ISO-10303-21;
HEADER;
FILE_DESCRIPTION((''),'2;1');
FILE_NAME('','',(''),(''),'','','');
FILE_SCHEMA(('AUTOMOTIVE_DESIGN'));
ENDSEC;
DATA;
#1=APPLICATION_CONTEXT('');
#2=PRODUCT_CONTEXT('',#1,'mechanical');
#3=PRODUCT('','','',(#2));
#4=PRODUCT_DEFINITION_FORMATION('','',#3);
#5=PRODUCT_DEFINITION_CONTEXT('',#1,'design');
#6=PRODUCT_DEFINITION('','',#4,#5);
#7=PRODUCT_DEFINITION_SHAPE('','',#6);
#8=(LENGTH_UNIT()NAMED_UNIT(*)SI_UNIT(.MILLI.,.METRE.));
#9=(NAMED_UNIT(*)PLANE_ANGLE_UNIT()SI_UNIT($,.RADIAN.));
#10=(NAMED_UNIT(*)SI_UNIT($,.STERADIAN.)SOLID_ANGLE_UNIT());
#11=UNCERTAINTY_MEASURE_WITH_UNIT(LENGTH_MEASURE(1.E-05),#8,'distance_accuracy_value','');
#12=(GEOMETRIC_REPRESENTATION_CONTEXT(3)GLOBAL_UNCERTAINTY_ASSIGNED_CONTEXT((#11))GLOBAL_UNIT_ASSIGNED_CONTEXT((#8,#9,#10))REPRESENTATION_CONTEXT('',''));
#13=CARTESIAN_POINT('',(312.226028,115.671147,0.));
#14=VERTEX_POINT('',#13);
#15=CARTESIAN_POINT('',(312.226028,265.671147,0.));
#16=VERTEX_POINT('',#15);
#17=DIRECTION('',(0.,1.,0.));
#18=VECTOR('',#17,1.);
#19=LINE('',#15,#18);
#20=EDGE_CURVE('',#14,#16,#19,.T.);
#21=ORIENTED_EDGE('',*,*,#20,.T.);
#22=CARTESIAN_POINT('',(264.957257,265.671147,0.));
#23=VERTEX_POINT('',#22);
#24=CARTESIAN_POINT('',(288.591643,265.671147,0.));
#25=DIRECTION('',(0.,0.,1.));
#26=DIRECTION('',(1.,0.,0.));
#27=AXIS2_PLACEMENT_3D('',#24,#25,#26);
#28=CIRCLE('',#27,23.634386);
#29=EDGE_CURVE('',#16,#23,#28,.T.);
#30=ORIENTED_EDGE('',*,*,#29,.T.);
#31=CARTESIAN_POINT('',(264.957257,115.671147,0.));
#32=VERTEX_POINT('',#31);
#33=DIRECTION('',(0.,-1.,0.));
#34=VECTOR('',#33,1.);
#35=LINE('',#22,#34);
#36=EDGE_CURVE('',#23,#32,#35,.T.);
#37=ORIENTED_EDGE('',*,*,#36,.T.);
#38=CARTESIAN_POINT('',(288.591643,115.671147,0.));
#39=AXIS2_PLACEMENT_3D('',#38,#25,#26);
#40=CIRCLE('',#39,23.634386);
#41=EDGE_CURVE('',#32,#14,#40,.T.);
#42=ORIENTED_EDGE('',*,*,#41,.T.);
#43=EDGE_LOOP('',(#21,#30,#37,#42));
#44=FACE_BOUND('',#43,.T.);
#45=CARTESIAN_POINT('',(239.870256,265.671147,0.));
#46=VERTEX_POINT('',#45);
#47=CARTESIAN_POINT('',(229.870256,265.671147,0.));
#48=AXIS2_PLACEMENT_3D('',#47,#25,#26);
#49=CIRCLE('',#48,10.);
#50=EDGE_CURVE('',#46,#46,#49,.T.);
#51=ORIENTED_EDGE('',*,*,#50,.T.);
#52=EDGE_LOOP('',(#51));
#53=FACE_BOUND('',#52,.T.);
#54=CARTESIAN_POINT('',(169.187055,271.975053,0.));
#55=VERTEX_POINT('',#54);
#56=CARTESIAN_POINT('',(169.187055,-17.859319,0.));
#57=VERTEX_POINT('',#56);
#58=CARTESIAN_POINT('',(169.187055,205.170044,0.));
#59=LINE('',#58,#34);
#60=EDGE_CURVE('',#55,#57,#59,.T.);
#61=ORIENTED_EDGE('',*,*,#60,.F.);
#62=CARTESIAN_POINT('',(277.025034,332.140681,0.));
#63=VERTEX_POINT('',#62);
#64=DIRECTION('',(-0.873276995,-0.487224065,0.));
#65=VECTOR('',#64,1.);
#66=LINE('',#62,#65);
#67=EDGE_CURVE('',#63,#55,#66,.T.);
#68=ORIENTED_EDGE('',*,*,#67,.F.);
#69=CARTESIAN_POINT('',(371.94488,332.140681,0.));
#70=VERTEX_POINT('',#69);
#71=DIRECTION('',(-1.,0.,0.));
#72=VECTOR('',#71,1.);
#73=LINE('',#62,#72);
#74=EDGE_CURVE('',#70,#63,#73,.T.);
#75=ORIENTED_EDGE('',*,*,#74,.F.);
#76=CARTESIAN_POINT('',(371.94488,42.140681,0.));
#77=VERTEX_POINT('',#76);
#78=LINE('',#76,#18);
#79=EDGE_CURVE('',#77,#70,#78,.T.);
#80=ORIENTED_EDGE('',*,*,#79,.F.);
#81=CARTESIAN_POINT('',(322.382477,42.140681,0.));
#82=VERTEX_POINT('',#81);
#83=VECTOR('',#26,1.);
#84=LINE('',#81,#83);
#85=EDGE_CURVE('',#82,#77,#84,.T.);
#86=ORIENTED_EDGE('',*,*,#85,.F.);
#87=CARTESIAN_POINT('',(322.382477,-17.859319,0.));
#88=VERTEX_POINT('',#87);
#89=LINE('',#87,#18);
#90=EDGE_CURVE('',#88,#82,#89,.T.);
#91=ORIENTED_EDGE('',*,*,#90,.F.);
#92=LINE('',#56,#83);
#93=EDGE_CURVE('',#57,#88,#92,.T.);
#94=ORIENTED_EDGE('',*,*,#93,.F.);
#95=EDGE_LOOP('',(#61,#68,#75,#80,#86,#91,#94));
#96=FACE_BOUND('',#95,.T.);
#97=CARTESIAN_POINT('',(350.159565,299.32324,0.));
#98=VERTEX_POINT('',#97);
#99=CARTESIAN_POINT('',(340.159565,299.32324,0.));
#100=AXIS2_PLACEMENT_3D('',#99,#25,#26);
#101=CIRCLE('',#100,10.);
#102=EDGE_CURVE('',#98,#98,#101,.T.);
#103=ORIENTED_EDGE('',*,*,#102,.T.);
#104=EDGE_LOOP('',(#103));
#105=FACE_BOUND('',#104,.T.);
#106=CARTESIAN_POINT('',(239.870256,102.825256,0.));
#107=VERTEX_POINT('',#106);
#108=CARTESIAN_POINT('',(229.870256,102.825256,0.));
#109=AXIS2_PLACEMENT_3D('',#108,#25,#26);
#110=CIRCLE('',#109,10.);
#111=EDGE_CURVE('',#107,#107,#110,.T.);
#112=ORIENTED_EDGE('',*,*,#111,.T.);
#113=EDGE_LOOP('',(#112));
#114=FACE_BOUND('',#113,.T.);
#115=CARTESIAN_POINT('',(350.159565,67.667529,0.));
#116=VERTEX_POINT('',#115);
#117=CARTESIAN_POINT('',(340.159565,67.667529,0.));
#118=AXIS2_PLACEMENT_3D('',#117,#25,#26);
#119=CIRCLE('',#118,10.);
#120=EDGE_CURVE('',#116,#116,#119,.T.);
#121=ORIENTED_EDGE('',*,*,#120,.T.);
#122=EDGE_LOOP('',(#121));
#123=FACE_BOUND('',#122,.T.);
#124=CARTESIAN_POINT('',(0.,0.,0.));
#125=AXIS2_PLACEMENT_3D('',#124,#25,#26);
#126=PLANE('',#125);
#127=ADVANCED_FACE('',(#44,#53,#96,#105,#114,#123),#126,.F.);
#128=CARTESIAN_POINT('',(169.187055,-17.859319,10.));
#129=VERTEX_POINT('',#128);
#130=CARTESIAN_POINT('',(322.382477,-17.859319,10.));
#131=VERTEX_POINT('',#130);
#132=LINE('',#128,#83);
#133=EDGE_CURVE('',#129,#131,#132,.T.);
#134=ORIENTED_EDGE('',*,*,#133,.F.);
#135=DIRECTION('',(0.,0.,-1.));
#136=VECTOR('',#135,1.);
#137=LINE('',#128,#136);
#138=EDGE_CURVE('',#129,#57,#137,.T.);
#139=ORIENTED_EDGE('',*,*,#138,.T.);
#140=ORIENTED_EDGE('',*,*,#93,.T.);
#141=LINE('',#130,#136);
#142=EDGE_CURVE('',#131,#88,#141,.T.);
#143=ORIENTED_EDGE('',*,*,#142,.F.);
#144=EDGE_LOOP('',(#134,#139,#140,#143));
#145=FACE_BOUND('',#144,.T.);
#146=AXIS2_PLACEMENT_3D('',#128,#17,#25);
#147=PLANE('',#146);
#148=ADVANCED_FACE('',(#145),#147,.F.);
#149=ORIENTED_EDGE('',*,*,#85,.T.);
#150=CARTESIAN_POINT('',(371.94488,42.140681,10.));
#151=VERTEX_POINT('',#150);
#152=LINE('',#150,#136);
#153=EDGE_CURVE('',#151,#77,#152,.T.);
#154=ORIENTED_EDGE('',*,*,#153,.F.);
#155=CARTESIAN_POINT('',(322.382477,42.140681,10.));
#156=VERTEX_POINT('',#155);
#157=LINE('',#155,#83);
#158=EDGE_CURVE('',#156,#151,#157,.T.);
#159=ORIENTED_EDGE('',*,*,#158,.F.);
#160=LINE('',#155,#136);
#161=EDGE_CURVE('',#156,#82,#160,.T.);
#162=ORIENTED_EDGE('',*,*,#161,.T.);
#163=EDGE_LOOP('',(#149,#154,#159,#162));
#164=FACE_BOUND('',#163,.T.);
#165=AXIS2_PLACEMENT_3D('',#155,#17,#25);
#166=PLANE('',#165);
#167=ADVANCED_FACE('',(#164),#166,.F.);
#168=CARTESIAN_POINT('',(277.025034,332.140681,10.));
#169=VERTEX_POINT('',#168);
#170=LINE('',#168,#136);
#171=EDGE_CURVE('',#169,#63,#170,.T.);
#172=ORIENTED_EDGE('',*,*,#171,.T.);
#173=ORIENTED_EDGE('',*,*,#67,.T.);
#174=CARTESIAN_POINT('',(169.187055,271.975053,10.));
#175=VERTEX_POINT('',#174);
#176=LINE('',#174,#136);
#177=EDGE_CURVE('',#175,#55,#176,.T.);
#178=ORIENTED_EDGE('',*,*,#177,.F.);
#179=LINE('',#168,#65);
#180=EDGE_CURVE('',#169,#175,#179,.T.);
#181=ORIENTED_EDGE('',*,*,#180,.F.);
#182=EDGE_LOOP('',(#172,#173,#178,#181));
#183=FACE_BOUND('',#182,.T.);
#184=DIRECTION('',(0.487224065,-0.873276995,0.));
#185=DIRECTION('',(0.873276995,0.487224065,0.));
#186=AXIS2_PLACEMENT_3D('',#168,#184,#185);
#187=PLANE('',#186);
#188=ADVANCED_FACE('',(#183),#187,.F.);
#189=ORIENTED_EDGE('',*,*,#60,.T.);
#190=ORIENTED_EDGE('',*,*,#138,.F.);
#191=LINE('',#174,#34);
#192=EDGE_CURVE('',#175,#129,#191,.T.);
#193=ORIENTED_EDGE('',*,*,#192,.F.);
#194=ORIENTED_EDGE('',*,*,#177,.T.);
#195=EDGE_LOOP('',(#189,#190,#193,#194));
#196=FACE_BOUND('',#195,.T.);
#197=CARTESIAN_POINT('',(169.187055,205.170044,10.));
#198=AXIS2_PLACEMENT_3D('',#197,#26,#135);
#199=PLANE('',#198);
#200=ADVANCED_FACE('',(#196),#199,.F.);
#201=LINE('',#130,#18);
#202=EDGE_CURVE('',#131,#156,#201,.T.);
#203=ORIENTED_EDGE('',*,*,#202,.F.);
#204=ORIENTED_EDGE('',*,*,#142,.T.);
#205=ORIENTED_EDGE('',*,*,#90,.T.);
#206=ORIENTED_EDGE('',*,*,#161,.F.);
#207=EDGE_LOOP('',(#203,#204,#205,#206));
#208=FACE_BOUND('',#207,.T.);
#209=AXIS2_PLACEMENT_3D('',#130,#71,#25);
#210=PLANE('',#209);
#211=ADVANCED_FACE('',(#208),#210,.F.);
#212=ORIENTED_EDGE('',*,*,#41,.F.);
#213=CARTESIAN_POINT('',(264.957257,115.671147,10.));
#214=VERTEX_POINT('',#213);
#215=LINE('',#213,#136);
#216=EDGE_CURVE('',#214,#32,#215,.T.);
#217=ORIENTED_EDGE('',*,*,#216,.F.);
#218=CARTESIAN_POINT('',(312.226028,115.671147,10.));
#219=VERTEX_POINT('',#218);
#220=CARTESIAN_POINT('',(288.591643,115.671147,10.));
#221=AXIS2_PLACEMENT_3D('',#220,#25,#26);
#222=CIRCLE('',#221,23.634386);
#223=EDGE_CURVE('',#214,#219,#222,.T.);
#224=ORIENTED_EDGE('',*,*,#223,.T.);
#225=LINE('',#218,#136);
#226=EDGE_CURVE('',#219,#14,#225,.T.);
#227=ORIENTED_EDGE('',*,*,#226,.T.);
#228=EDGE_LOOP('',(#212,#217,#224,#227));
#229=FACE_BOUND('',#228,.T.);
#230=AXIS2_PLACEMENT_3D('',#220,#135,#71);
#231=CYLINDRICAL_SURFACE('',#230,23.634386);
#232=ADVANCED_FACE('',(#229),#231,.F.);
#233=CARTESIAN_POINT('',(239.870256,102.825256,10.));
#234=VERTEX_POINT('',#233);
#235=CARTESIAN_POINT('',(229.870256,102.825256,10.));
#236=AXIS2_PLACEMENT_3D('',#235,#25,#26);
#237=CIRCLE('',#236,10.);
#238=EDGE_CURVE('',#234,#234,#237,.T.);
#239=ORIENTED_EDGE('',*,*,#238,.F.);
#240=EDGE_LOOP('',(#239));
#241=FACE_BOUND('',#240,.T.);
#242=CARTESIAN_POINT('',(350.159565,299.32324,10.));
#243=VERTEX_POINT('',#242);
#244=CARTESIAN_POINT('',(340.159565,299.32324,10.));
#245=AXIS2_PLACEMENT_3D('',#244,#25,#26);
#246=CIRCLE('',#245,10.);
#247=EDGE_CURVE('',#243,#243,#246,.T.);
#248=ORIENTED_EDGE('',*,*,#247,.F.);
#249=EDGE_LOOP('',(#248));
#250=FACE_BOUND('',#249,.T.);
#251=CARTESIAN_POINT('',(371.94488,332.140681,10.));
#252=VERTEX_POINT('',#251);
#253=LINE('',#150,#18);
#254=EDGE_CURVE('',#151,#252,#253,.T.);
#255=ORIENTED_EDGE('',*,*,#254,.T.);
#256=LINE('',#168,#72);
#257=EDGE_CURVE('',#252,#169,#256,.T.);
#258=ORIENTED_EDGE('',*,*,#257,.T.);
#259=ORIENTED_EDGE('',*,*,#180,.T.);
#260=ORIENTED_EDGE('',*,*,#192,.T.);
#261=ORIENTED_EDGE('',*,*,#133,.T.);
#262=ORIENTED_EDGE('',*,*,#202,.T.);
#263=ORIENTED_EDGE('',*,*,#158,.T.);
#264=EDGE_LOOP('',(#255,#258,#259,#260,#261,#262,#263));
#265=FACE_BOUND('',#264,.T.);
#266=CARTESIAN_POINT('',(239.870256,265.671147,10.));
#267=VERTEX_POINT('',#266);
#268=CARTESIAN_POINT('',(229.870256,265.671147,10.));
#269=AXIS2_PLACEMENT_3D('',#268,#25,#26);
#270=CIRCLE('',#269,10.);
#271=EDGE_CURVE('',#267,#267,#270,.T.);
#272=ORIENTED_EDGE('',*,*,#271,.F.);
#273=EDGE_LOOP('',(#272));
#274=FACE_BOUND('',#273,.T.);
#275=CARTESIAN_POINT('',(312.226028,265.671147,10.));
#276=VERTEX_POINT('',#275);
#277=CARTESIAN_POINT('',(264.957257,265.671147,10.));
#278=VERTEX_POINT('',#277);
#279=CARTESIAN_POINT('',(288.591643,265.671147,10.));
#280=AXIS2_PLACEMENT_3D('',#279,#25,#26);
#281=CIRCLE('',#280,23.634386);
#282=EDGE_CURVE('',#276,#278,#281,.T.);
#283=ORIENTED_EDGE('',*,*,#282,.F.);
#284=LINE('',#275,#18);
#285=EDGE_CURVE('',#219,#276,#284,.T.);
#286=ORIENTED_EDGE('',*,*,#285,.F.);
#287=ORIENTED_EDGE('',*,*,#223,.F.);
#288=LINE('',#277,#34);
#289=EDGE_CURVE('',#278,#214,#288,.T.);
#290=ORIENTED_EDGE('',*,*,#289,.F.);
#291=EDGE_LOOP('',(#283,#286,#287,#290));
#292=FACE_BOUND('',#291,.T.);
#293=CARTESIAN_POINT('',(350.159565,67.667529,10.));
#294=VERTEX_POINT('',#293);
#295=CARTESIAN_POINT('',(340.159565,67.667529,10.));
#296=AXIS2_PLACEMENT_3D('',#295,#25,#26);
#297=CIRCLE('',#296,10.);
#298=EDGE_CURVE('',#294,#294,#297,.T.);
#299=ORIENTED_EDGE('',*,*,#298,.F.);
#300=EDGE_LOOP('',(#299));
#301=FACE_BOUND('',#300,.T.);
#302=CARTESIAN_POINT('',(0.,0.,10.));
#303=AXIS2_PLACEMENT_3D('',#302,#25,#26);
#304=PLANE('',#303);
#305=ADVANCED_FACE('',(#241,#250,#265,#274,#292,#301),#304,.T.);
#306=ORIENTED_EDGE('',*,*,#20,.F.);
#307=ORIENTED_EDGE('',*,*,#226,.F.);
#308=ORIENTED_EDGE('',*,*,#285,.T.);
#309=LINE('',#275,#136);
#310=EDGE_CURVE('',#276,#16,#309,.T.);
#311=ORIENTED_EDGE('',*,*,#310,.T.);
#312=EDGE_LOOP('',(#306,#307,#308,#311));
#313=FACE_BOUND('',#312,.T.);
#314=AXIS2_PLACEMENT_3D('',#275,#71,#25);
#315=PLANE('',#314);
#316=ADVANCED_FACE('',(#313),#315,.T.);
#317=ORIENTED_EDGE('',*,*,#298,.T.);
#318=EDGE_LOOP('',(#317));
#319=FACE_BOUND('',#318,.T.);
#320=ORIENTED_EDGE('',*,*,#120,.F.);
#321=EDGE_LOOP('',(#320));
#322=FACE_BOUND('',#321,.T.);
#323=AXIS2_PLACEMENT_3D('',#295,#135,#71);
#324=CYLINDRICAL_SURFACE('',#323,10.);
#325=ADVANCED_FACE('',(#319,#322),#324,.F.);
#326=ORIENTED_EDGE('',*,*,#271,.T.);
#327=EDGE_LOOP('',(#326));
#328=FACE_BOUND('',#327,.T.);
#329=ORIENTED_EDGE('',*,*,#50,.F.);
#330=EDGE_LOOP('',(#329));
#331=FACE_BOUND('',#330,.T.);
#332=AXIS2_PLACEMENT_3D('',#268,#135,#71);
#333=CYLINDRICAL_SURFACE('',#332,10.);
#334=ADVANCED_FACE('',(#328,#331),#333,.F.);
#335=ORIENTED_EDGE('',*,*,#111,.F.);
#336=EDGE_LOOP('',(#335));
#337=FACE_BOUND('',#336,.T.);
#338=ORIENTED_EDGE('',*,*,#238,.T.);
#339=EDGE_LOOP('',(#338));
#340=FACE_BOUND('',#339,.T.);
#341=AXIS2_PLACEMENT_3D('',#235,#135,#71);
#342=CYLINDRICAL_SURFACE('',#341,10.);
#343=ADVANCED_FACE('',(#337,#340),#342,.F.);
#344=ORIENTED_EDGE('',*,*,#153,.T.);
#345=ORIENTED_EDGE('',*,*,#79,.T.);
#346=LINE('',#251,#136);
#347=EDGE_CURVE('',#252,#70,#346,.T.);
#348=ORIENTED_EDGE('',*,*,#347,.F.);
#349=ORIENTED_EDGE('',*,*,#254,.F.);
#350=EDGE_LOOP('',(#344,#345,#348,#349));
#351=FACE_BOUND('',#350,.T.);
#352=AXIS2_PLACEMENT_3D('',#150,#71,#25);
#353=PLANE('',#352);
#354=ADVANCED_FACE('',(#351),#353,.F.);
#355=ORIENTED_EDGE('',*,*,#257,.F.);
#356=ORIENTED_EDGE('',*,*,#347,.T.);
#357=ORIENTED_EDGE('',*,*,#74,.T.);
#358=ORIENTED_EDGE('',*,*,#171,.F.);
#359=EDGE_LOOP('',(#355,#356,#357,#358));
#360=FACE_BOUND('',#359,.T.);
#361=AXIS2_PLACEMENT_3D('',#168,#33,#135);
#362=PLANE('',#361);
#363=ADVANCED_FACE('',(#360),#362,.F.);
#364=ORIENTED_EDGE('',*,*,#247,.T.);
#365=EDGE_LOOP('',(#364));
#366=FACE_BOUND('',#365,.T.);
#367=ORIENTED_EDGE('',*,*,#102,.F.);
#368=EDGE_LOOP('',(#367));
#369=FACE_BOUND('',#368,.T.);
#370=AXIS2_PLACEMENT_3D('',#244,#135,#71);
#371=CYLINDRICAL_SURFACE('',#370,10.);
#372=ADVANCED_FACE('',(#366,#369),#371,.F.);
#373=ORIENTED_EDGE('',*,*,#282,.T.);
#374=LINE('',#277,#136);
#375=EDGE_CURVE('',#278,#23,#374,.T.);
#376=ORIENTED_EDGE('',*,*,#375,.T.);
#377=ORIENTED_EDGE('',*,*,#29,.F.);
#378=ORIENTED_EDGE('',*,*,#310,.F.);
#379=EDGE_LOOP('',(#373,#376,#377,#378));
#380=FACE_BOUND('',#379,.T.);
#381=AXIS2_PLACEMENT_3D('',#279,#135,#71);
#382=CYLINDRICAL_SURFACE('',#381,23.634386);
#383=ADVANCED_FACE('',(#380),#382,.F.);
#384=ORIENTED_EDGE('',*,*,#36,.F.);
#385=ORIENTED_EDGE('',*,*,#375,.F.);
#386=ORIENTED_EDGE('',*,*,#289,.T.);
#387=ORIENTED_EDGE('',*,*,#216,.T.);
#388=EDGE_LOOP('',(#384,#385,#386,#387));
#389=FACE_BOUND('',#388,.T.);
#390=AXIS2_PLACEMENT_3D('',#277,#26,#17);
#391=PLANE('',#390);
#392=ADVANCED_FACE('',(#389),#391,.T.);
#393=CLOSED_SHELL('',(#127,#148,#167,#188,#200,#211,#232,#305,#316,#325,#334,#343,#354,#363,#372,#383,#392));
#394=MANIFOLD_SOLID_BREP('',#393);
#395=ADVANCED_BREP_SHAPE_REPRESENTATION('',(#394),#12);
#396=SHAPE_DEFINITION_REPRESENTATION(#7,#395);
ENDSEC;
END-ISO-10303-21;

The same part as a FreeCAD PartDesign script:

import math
import FreeCAD as App
import Part
import Sketcher


def add_polygon(sketch, points):
    """Adds a closed chain of lines whose ends are joined by coincident constraints."""
    first, n = sketch.GeometryCount, len(points)
    for a, b in zip(points, points[1:] + points[:1]):
        sketch.addGeometry(Part.LineSegment(App.Vector(*a, 0), App.Vector(*b, 0)), False)
    for i in range(n):
        sketch.addConstraint(Sketcher.Constraint("Coincident", first + i, 2, first + (i + 1) % n, 1))

doc = App.newDocument("Part")
body = doc.addObject("PartDesign::Body", "Body")

sketch1 = body.newObject("Sketcher::SketchObject", "Sketch")
sketch1.AttachmentSupport = (doc.getObject("XY_Plane"), [""])
sketch1.MapMode = "FlatFace"
add_polygon(sketch1, [(322, -18), (322, 42), (372, 42), (372, 332), (277, 332), (169, 272), (169, -18)])
sketch1.addGeometry(Part.Circle(App.Vector(230, 103, 0), App.Vector(0, 0, 1), 10), False)
sketch1.addGeometry(Part.Circle(App.Vector(340, 68, 0), App.Vector(0, 0, 1), 10), False)
sketch1.addGeometry(Part.Circle(App.Vector(230, 266, 0), App.Vector(0, 0, 1), 10), False)
sketch1.addGeometry(Part.ArcOfCircle(Part.Circle(App.Vector(289, 266, 0), App.Vector(0, 0, 1), 24), math.radians(0), math.radians(180)), False)
sketch1.addGeometry(Part.LineSegment(App.Vector(312, 266, 0), App.Vector(312, 116, 0)), False)
sketch1.addGeometry(Part.ArcOfCircle(Part.Circle(App.Vector(289, 116, 0), App.Vector(0, 0, 1), 24), math.radians(180), math.radians(360)), False)
sketch1.addGeometry(Part.LineSegment(App.Vector(265, 116, 0), App.Vector(265, 266, 0)), False)
sketch1.addGeometry(Part.Circle(App.Vector(340, 299, 0), App.Vector(0, 0, 1), 10), False)
sketch1.addConstraint([
    Sketcher.Constraint("Tangent", 10, 1, 11, 1),
    Sketcher.Constraint("Tangent", 11, 2, 12, 2),
    Sketcher.Constraint("Tangent", 12, 1, 13, 1),
    Sketcher.Constraint("Tangent", 13, 2, 10, 2),
    Sketcher.Constraint("Vertical", 0),
    Sketcher.Constraint("Horizontal", 1),
    Sketcher.Constraint("Vertical", 2),
    Sketcher.Constraint("Horizontal", 3),
    Sketcher.Constraint("Vertical", 5),
    Sketcher.Constraint("Horizontal", 6),
    Sketcher.Constraint("Vertical", 11),
    Sketcher.Constraint("Vertical", 13),
    Sketcher.Constraint("Equal", 7, 8),
    Sketcher.Constraint("Equal", 8, 9),
    Sketcher.Constraint("Equal", 9, 14),
    Sketcher.Constraint("Horizontal", 9, 3, 10, 3),
    Sketcher.Constraint("Vertical", 7, 3, 9, 3),
    Sketcher.Constraint("Vertical", 8, 3, 14, 3),
    Sketcher.Constraint("Diameter", 7, 20.0),
    Sketcher.Constraint("DistanceY", 0, 1, 0, 2, 60.0),
    Sketcher.Constraint("DistanceY", 2, 1, 2, 2, 290.0),
    Sketcher.Constraint("DistanceY", 11, 2, 11, 1, 150.0),
    Sketcher.Constraint("Radius", 10, 23.634386),
    Sketcher.Constraint("DistanceX", 7, 3, 12, 1, 35.087001),
    Sketcher.Constraint("DistanceY", 5, 2, 5, 1, 289.834372),
    Sketcher.Constraint("DistanceX", 4, 2, 9, 3, 60.683201),
    Sketcher.Constraint("Distance", 4, 123.486569),
    Sketcher.Constraint("DistanceX", 1, 1, 1, 2, 49.562403),
    Sketcher.Constraint("DistanceX", 3, 2, 3, 1, 94.919846),
    Sketcher.Constraint("DistanceY", -1, 1, 8, 3, 67.667529),
    Sketcher.Constraint("DistanceY", -1, 1, 14, 3, 299.32324),
    Sketcher.Constraint("DistanceY", -1, 1, 0, 2, 42.140681),
    Sketcher.Constraint("DistanceX", -1, 1, 1, 2, 371.94488),
    Sketcher.Constraint("DistanceX", 7, 3, 8, 3, 110.28931),
    Sketcher.Constraint("DistanceY", 7, 3, 9, 3, 162.845891),
    Sketcher.Constraint("DistanceY", 8, 3, 9, 3, 198.003618),
])
pad1 = body.newObject("PartDesign::Pad", "Pad")
pad1.Profile = sketch1
pad1.Length = 10

doc.recompute()
